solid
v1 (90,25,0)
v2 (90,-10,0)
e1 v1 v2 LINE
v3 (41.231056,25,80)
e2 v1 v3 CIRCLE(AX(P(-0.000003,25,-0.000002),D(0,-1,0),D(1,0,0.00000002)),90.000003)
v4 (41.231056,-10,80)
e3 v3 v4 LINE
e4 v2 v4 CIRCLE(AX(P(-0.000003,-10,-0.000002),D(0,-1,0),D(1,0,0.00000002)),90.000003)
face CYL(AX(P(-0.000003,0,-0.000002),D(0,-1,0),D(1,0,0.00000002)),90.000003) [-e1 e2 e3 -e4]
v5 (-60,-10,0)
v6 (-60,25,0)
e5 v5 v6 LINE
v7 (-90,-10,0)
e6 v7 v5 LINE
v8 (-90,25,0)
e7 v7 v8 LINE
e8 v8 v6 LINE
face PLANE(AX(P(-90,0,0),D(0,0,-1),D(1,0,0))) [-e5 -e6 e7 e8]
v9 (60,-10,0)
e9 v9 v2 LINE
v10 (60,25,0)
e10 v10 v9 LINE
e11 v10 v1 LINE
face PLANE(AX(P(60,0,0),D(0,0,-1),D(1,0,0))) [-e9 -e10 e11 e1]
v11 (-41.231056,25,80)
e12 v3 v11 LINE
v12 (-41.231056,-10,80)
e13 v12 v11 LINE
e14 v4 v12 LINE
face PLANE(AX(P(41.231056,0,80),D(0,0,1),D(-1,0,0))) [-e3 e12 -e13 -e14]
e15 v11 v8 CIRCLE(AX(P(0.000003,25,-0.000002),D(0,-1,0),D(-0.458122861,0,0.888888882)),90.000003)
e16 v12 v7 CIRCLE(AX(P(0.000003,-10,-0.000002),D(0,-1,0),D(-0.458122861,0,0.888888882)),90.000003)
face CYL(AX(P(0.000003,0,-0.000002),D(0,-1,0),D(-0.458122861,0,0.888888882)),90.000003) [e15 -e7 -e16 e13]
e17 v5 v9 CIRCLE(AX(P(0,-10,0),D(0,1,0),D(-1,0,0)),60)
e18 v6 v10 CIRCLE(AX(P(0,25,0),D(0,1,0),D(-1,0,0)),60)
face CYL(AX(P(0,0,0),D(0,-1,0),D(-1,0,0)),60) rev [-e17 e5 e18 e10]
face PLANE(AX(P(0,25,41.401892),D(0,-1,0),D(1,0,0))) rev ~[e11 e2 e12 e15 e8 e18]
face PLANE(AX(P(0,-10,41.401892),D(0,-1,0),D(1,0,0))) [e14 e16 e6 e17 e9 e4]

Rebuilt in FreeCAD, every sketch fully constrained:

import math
import FreeCAD as App
import Part
import Sketcher

doc = App.newDocument("Part")
body = doc.addObject("PartDesign::Body", "Body")

sketch1 = body.newObject("Sketcher::SketchObject", "Sketch")
sketch1.AttachmentSupport = (doc.getObject("XZ_Plane"), [""])
sketch1.MapMode = "FlatFace"
sketch1.addGeometry(Part.ArcOfCircle(Part.Circle(App.Vector(0, 0, 0), App.Vector(0, 0, 1), 60), math.radians(0), math.radians(180)), False)
sketch1.addGeometry(Part.LineSegment(App.Vector(60, 0, 0), App.Vector(90, 0, 0)), False)
sketch1.addGeometry(Part.ArcOfCircle(Part.Circle(App.Vector(0, 0, 0), App.Vector(0, 0, 1), 90), math.radians(0), math.radians(63)), False)
sketch1.addGeometry(Part.LineSegment(App.Vector(41, 80, 0), App.Vector(-41, 80, 0)), False)
sketch1.addGeometry(Part.ArcOfCircle(Part.Circle(App.Vector(0, 0, 0), App.Vector(0, 0, 1), 90), math.radians(117), math.radians(180)), False)
sketch1.addGeometry(Part.LineSegment(App.Vector(-90, 0, 0), App.Vector(-60, 0, 0)), False)
sketch1.addConstraint(Sketcher.Constraint("Coincident", 0, 1, 1, 1))
sketch1.addConstraint(Sketcher.Constraint("Coincident", 1, 2, 2, 1))
sketch1.addConstraint(Sketcher.Constraint("Coincident", 2, 2, 3, 1))
sketch1.addConstraint(Sketcher.Constraint("Coincident", 3, 2, 4, 1))
sketch1.addConstraint(Sketcher.Constraint("Coincident", 4, 2, 5, 1))
sketch1.addConstraint(Sketcher.Constraint("Coincident", 5, 2, 0, 2))
sketch1.addConstraint(Sketcher.Constraint("Horizontal", 1))
sketch1.addConstraint(Sketcher.Constraint("Horizontal", 3))
sketch1.addConstraint(Sketcher.Constraint("Horizontal", 5))
sketch1.addConstraint(Sketcher.Constraint("Coincident", 0, 3, -1, 1))
sketch1.addConstraint(Sketcher.Constraint("Coincident", 2, 3, -1, 1))
sketch1.addConstraint(Sketcher.Constraint("Coincident", 4, 3, -1, 1))
sketch1.addConstraint(Sketcher.Constraint("Equal", 2, 4))
sketch1.addConstraint(Sketcher.Constraint("PointOnObject", 0, 1, -1))
sketch1.addConstraint(Sketcher.Constraint("PointOnObject", 4, 2, -1))
sketch1.addConstraint(Sketcher.Constraint("Radius", 0, 60.0))
sketch1.addConstraint(Sketcher.Constraint("DistanceX", 1, 1, 1, 2, 30.0))
sketch1.addConstraint(Sketcher.Constraint("DistanceY", -1, 1, 2, 2, 80.0))
pad1 = body.newObject("PartDesign::Pad", "Pad")
pad1.Profile = sketch1
pad1.Type = "TwoLengths"
pad1.Length = 10
pad1.Length2 = 25

doc.recompute()
